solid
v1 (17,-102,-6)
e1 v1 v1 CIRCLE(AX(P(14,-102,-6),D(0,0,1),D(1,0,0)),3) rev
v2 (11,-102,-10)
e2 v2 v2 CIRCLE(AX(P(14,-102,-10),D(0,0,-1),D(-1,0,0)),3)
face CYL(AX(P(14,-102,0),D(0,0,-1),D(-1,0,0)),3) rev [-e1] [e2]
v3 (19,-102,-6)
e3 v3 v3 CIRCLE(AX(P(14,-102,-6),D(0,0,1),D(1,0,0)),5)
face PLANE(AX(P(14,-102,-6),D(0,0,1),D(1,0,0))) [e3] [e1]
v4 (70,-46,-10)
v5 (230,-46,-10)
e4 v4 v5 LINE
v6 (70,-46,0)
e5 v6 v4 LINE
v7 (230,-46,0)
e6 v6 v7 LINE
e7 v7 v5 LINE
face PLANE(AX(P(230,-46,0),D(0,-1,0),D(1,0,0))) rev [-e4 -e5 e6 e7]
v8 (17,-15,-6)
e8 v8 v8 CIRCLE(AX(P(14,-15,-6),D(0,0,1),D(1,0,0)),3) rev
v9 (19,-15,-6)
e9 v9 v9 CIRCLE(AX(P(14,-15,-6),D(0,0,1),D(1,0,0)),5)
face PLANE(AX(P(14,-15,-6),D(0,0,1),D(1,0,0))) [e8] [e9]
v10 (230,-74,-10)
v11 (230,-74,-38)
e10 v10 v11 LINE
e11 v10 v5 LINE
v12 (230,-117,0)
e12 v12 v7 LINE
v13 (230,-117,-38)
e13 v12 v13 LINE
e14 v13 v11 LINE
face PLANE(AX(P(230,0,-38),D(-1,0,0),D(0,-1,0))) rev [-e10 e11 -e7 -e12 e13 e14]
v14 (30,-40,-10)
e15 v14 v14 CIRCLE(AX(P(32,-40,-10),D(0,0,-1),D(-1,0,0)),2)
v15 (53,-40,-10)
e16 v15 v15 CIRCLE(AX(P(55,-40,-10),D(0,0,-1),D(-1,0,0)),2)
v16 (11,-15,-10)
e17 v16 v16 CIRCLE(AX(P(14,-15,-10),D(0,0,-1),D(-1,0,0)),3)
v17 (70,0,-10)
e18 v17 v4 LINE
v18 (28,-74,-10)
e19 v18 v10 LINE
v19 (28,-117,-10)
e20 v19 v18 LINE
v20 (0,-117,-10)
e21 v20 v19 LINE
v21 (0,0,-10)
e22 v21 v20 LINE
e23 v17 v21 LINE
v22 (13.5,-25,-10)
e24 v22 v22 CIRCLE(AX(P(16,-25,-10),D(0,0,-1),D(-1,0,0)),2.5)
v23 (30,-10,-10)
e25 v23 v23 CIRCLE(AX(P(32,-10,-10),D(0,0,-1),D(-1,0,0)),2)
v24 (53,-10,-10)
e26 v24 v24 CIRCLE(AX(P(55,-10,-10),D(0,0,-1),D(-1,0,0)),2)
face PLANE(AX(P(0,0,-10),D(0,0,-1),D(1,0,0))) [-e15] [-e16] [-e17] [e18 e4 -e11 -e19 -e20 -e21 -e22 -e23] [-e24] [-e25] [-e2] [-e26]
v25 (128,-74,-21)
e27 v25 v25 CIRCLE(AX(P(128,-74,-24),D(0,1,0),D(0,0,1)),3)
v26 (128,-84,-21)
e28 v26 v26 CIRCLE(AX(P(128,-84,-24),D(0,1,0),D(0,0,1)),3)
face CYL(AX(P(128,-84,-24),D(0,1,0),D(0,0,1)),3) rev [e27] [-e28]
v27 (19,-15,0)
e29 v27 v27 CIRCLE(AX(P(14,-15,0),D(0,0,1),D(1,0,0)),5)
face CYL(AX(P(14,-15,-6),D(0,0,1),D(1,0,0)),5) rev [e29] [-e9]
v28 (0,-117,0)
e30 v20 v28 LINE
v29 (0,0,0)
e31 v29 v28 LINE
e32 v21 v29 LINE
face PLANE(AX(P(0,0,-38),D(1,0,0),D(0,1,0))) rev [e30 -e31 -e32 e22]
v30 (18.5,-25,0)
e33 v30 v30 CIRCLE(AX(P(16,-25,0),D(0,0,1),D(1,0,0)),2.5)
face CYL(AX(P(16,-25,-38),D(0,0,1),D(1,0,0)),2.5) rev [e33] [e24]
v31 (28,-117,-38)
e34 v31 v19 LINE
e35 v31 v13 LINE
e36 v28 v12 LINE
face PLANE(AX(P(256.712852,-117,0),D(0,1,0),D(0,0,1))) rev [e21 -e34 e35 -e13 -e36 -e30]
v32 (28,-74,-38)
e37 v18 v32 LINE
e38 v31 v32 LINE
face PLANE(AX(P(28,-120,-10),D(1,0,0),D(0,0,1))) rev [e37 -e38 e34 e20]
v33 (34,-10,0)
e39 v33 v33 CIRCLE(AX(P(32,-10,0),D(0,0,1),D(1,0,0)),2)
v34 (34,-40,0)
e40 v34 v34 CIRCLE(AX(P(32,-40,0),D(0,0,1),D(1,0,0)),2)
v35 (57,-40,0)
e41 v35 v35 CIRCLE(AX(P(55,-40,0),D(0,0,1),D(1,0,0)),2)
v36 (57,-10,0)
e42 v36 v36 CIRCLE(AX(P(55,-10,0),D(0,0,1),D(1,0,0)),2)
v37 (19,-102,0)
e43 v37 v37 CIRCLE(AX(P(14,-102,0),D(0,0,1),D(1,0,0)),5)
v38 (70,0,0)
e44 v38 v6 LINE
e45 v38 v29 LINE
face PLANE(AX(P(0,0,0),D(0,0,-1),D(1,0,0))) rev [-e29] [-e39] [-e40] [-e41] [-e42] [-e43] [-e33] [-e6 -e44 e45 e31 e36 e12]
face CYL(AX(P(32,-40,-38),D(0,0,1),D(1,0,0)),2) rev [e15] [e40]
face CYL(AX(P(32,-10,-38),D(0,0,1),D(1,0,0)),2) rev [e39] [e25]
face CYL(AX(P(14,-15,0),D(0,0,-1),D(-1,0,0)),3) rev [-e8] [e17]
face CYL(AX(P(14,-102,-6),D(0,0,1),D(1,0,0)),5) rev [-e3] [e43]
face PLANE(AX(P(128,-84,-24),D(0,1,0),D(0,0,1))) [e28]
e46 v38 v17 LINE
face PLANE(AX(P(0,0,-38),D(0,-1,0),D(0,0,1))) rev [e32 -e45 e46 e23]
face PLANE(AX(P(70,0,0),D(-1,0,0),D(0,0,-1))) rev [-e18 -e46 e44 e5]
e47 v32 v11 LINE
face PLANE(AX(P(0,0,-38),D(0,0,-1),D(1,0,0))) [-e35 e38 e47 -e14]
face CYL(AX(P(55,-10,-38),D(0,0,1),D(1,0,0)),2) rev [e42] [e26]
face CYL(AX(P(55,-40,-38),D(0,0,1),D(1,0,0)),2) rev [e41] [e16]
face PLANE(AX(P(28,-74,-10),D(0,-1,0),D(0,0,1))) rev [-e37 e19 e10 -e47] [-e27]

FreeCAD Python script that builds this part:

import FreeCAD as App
import Part
import Sketcher
from FreeCAD import Vector


def add_polygon(sketch, points):
    """Adds a closed chain of lines whose ends are joined by coincident constraints."""
    first, n = sketch.GeometryCount, len(points)
    for a, b in zip(points, points[1:] + points[:1]):
        sketch.addGeometry(Part.LineSegment(App.Vector(*a, 0), App.Vector(*b, 0)), False)
    for i in range(n):
        sketch.addConstraint(Sketcher.Constraint("Coincident", first + i, 2, first + (i + 1) % n, 1))

doc = App.newDocument("Part")
body = doc.addObject("PartDesign::Body", "Body")

# Sketch on XY plane
sketch1 = doc.addObject("Sketcher::SketchObject", "Sketch")
body.addObject(sketch1)
sketch1.AttachmentSupport = (doc.XY_Plane, [""])
sketch1.MapMode = "FlatFace"
add_polygon(sketch1, [(0, 0), (0, -120), (230, -120), (230, 0)])  # lines 0-3
sketch1.addConstraint(Sketcher.Constraint("Vertical", 0))
sketch1.addConstraint(Sketcher.Constraint("Horizontal", 1))
sketch1.addConstraint(Sketcher.Constraint("Vertical", 2))
sketch1.addConstraint(Sketcher.Constraint("Horizontal", 3))
sketch1.addConstraint(Sketcher.Constraint("Coincident", 3, 2, -1, 1))
sketch1.addConstraint(Sketcher.Constraint("DistanceX", 1, 1, 1, 2, 230.0))
sketch1.addConstraint(Sketcher.Constraint("DistanceY", 0, 2, 0, 1, 120.0))
pad1 = doc.addObject("PartDesign::Pad", "Pad")
body.addObject(pad1)
pad1.Profile = sketch1
pad1.Length = 38

# Sketch on XY plane
sketch2 = doc.addObject("Sketcher::SketchObject", "Sketch001")
body.addObject(sketch2)
sketch2.AttachmentSupport = (doc.XY_Plane, [""])
sketch2.MapMode = "FlatFace"
sketch2.AttachmentOffset = App.Placement(Vector(0, 0, 38), App.Rotation())
add_polygon(sketch2, [(28, -120), (28, -74), (230, -74), (230, 0), (0, 0), (0, -120)])  # lines 0-5
sketch2.addConstraint(Sketcher.Constraint("Vertical", 0))
sketch2.addConstraint(Sketcher.Constraint("Horizontal", 1))
sketch2.addConstraint(Sketcher.Constraint("Vertical", 2))
sketch2.addConstraint(Sketcher.Constraint("Horizontal", 3))
sketch2.addConstraint(Sketcher.Constraint("Vertical", 4))
sketch2.addConstraint(Sketcher.Constraint("Horizontal", 5))
sketch2.addConstraint(Sketcher.Constraint("Coincident", 3, 2, -1, 1))
sketch2.addConstraint(Sketcher.Constraint("DistanceX", 1, 1, 1, 2, 202.0))
sketch2.addConstraint(Sketcher.Constraint("DistanceX", 3, 2, 3, 1, 230.0))
sketch2.addConstraint(Sketcher.Constraint("DistanceY", 0, 1, 0, 2, 46.0))
sketch2.addConstraint(Sketcher.Constraint("DistanceY", 2, 1, 2, 2, 74.0))
pocket1 = doc.addObject("PartDesign::Pocket", "Pocket")
body.addObject(pocket1)
pocket1.Profile = sketch2
pocket1.Length = 28

# Sketch on XY plane
sketch3 = doc.addObject("Sketcher::SketchObject", "Sketch002")
body.addObject(sketch3)
sketch3.AttachmentSupport = (doc.XY_Plane, [""])
sketch3.MapMode = "FlatFace"
sketch3.AttachmentOffset = App.Placement(Vector(0, 0, 10), App.Rotation())
add_polygon(sketch3, [(70, 0), (70, -46), (230, -46), (230, 0)])  # lines 0-3
sketch3.addConstraint(Sketcher.Constraint("Vertical", 0))
sketch3.addConstraint(Sketcher.Constraint("Horizontal", 1))
sketch3.addConstraint(Sketcher.Constraint("Vertical", 2))
sketch3.addConstraint(Sketcher.Constraint("Horizontal", 3))
sketch3.addConstraint(Sketcher.Constraint("PointOnObject", 2, 2, -1))
sketch3.addConstraint(Sketcher.Constraint("DistanceX", 1, 1, 1, 2, 160.0))
sketch3.addConstraint(Sketcher.Constraint("DistanceY", 0, 2, 0, 1, 46.0))
sketch3.addConstraint(Sketcher.Constraint("DistanceX", -1, 1, 0, 2, 70.0))
pocket2 = doc.addObject("PartDesign::Pocket", "Pocket001")
body.addObject(pocket2)
pocket2.Profile = sketch3
pocket2.Type = "ThroughAll"
body2 = doc.addObject("PartDesign::Body", "Body001")
doc.recompute()

mirroring = doc.addObject("Part::Mirroring", "Mirroring")
mirroring.Source = body
mirroring.Base = Vector(102.272727, -73.454545, 0)
mirroring.Normal = Vector(0, 0, -1)
body2.BaseFeature = mirroring
doc.recompute()

# Sketch on XZ plane
sketch4 = doc.addObject("Sketcher::SketchObject", "Sketch003")
body2.addObject(sketch4)
sketch4.AttachmentSupport = (doc.getObject("XZ_Plane001"), [""])
sketch4.MapMode = "FlatFace"
sketch4.AttachmentOffset = App.Placement(Vector(0, 0, 74), App.Rotation())
sketch4.addGeometry(Part.Circle(Vector(128, -24, 0), Vector(0, 0, 1), 3), False)
sketch4.addConstraint(Sketcher.Constraint("Diameter", 0, 6.0))
sketch4.addConstraint(Sketcher.Constraint("DistanceX", -1, 1, 0, 3, 128.0))
sketch4.addConstraint(Sketcher.Constraint("DistanceY", 0, 3, -1, 1, 24.0))
pocket3 = doc.addObject("PartDesign::Pocket", "Pocket002")
body2.addObject(pocket3)
pocket3.Profile = sketch4
pocket3.Length = 10
pocket3.Reversed = True

# Sketch on XY plane
sketch5 = doc.addObject("Sketcher::SketchObject", "Sketch004")
body2.addObject(sketch5)
sketch5.AttachmentSupport = (doc.getObject("XY_Plane001"), [""])
sketch5.MapMode = "FlatFace"
sketch5.AttachmentOffset = App.Placement(Vector(0, 0, -38), App.Rotation())
add_polygon(sketch5, [(257, -117), (257, -172), (-20, -172), (-20, -117)])  # lines 0-3
sketch5.addConstraint(Sketcher.Constraint("Vertical", 0))
sketch5.addConstraint(Sketcher.Constraint("Horizontal", 1))
sketch5.addConstraint(Sketcher.Constraint("Vertical", 2))
sketch5.addConstraint(Sketcher.Constraint("Horizontal", 3))
sketch5.addConstraint(Sketcher.Constraint("DistanceY", 2, 2, -1, 1, 117.0))
sketch5.addConstraint(Sketcher.Constraint("DistanceX", 1, 2, 1, 1, 276.739384))
sketch5.addConstraint(Sketcher.Constraint("DistanceY", 0, 2, 0, 1, 54.976415))
sketch5.addConstraint(Sketcher.Constraint("DistanceX", 1, 2, -1, 1, 20.026532))
pocket4 = doc.addObject("PartDesign::Pocket", "Pocket003")
body2.addObject(pocket4)
pocket4.Profile = sketch5
pocket4.Type = "ThroughAll"
pocket4.Reversed = True

# Sketch on XY plane
sketch6 = doc.addObject("Sketcher::SketchObject", "Sketch005")
body2.addObject(sketch6)
sketch6.AttachmentSupport = (doc.getObject("XY_Plane001"), [""])
sketch6.MapMode = "FlatFace"
sketch6.AttachmentOffset = App.Placement(Vector(0, 0, -10), App.Rotation())
sketch6.addGeometry(Part.Circle(Vector(14, -102, 0), Vector(0, 0, 1), 3), False)
sketch6.addGeometry(Part.Circle(Vector(14, -15, 0), Vector(0, 0, 1), 3), False)
sketch6.addConstraint(Sketcher.Constraint("Equal", 0, 1))
sketch6.addConstraint(Sketcher.Constraint("Vertical", 0, 3, 1, 3))
sketch6.addConstraint(Sketcher.Constraint("Diameter", 0, 6.0))
sketch6.addConstraint(Sketcher.Constraint("DistanceX", -1, 1, 0, 3, 14.0))
sketch6.addConstraint(Sketcher.Constraint("DistanceY", 0, 3, -1, 1, 102.0))
sketch6.addConstraint(Sketcher.Constraint("DistanceY", 1, 3, -1, 1, 15.0))
pocket5 = doc.addObject("PartDesign::Pocket", "Pocket004")
body2.addObject(pocket5)
pocket5.Profile = sketch6
pocket5.Type = "ThroughAll"
pocket5.Reversed = True

# Sketch on XY plane
sketch7 = doc.addObject("Sketcher::SketchObject", "Sketch006")
body2.addObject(sketch7)
sketch7.AttachmentSupport = (doc.getObject("XY_Plane001"), [""])
sketch7.MapMode = "FlatFace"
sketch7.addGeometry(Part.Circle(Vector(14, -15, 0), Vector(0, 0, 1), 5), False)
sketch7.addGeometry(Part.Circle(Vector(14, -102, 0), Vector(0, 0, 1), 5), False)
sketch7.addConstraint(Sketcher.Constraint("Equal", 0, 1))
sketch7.addConstraint(Sketcher.Constraint("Vertical", 0, 3, 1, 3))
sketch7.addConstraint(Sketcher.Constraint("Diameter", 0, 10.0))
sketch7.addConstraint(Sketcher.Constraint("DistanceX", -1, 1, 0, 3, 14.0))
sketch7.addConstraint(Sketcher.Constraint("DistanceY", 0, 3, -1, 1, 15.0))
sketch7.addConstraint(Sketcher.Constraint("DistanceY", 1, 3, -1, 1, 102.0))
pocket6 = doc.addObject("PartDesign::Pocket", "Pocket005")
body2.addObject(pocket6)
pocket6.Profile = sketch7
pocket6.Length = 6

# Sketch on XY plane
sketch8 = doc.addObject("Sketcher::SketchObject", "Sketch007")
body2.addObject(sketch8)
sketch8.AttachmentSupport = (doc.getObject("XY_Plane001"), [""])
sketch8.MapMode = "FlatFace"
sketch8.addGeometry(Part.Circle(Vector(55, -40, 0), Vector(0, 0, 1), 2), False)
sketch8.addGeometry(Part.Circle(Vector(55, -10, 0), Vector(0, 0, 1), 2), False)
sketch8.addGeometry(Part.Circle(Vector(32, -10, 0), Vector(0, 0, 1), 2), False)
sketch8.addGeometry(Part.Circle(Vector(32, -40, 0), Vector(0, 0, 1), 2), False)
sketch8.addConstraint(Sketcher.Constraint("Equal", 0, 1))
sketch8.addConstraint(Sketcher.Constraint("Equal", 1, 2))
sketch8.addConstraint(Sketcher.Constraint("Equal", 2, 3))
sketch8.addConstraint(Sketcher.Constraint("Horizontal", 1, 3, 2, 3))
sketch8.addConstraint(Sketcher.Constraint("Horizontal", 0, 3, 3, 3))
sketch8.addConstraint(Sketcher.Constraint("Vertical", 0, 3, 1, 3))
sketch8.addConstraint(Sketcher.Constraint("Vertical", 2, 3, 3, 3))
sketch8.addConstraint(Sketcher.Constraint("Diameter", 0, 4.0))
sketch8.addConstraint(Sketcher.Constraint("DistanceX", -1, 1, 0, 3, 55.0))
sketch8.addConstraint(Sketcher.Constraint("DistanceY", 0, 3, -1, 1, 40.0))
sketch8.addConstraint(Sketcher.Constraint("DistanceY", 1, 3, -1, 1, 10.0))
sketch8.addConstraint(Sketcher.Constraint("DistanceX", -1, 1, 2, 3, 32.0))
pocket7 = doc.addObject("PartDesign::Pocket", "Pocket006")
body2.addObject(pocket7)
pocket7.Profile = sketch8
pocket7.Type = "ThroughAll"

# Sketch on XY plane
sketch9 = doc.addObject("Sketcher::SketchObject", "Sketch008")
body2.addObject(sketch9)
sketch9.AttachmentSupport = (doc.getObject("XY_Plane001"), [""])
sketch9.MapMode = "FlatFace"
sketch9.addGeometry(Part.Circle(Vector(16, -25, 0), Vector(0, 0, 1), 2.5), False)
sketch9.addConstraint(Sketcher.Constraint("Diameter", 0, 5.0))
sketch9.addConstraint(Sketcher.Constraint("DistanceX", -1, 1, 0, 3, 16.0))
sketch9.addConstraint(Sketcher.Constraint("DistanceY", 0, 3, -1, 1, 25.0))
pocket8 = doc.addObject("PartDesign::Pocket", "Pocket007")
body2.addObject(pocket8)
pocket8.Profile = sketch9
pocket8.Type = "ThroughAll"
body.Visibility = False
mirroring.Visibility = False

doc.recompute()
